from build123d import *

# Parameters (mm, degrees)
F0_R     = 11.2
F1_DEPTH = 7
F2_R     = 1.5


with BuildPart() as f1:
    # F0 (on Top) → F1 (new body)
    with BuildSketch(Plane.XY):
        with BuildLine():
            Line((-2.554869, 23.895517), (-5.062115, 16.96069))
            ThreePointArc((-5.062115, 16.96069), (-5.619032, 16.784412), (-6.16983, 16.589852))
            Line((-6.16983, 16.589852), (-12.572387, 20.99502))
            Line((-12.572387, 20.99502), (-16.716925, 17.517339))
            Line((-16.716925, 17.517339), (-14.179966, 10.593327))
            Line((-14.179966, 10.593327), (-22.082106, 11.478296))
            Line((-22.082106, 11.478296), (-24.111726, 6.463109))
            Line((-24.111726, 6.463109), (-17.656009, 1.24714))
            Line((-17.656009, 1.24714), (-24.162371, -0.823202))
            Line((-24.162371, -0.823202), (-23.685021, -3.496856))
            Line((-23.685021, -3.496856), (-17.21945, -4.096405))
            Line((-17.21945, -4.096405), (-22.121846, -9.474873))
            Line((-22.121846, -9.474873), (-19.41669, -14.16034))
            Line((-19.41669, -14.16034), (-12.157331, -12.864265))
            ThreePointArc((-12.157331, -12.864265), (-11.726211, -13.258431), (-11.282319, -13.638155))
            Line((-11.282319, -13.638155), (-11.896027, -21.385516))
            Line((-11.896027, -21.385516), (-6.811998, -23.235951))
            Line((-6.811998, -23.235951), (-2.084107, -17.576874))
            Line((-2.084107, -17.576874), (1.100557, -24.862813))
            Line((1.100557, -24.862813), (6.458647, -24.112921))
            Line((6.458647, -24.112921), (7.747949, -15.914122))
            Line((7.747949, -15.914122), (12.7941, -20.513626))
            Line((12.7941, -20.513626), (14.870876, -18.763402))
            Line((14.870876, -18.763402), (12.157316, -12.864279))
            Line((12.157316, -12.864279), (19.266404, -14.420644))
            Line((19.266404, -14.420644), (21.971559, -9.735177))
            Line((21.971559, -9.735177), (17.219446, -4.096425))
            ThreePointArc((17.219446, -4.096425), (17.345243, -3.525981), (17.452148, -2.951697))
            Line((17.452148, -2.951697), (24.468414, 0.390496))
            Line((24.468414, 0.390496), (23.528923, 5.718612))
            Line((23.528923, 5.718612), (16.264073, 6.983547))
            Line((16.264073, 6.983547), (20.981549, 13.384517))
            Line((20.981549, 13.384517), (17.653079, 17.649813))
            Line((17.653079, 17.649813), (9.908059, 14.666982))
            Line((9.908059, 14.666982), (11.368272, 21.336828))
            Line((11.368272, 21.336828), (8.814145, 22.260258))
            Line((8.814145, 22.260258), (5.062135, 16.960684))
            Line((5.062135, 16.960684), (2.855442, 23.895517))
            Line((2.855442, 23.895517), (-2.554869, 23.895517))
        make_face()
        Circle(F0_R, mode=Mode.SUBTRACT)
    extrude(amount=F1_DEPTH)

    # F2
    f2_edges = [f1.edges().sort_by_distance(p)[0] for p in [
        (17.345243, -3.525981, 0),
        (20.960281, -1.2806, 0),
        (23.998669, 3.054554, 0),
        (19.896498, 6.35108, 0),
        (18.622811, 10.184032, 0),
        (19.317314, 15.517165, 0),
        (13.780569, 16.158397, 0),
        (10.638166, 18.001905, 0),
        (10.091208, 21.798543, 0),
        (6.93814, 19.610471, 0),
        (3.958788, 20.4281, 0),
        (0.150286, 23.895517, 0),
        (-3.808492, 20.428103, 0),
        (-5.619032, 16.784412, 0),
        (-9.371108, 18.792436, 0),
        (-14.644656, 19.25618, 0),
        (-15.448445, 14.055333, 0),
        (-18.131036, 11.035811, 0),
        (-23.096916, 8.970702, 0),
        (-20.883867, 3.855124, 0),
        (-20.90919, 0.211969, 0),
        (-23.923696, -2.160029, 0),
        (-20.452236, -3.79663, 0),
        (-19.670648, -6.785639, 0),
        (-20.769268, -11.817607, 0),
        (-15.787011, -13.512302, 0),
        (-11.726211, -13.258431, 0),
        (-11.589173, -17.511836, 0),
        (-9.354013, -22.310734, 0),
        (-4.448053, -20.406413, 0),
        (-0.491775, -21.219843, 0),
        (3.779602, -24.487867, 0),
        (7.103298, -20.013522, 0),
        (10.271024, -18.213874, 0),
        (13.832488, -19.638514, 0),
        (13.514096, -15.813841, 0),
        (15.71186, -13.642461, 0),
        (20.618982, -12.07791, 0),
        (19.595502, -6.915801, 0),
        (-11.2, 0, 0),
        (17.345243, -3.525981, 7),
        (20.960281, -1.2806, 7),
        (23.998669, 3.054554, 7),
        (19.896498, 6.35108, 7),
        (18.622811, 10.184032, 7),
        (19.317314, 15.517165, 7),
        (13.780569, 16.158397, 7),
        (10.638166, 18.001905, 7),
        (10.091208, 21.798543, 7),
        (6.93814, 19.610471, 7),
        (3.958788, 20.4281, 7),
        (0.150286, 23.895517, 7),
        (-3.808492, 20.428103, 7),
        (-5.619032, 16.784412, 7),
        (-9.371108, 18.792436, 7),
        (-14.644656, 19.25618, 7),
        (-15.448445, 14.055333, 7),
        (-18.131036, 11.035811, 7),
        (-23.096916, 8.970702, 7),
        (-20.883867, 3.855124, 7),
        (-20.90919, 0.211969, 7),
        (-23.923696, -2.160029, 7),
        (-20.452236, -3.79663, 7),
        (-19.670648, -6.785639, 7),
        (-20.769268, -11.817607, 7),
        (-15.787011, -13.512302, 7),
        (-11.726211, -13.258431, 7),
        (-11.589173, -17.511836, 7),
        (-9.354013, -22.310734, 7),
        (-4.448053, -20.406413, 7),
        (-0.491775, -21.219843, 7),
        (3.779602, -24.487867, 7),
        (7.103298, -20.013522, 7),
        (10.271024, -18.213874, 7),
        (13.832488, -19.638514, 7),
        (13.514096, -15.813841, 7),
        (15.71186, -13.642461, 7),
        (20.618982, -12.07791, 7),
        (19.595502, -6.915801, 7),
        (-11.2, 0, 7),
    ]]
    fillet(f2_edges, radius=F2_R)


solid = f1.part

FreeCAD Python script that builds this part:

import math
import FreeCAD as App
import Part
import Sketcher

V = App.Vector


def edges_at(feature, points):
    """Names of the edges that pass closest to the given points."""
    edges = feature.Shape.Edges
    near = lambda p: min(range(len(edges)), key=lambda i: edges[i].distToShape(Part.Vertex(*p))[0])
    return sorted({f"Edge{near(p) + 1}" for p in points})

doc = App.newDocument("Part")
body = doc.addObject("PartDesign::Body", "Body")

# Sketch on XY plane
sketch1 = body.newObject("Sketcher::SketchObject", "Sketch")
sketch1.AttachmentSupport = (doc.getObject("XY_Plane"), [""])
sketch1.MapMode = "FlatFace"
sketch1.addGeometry([
    Part.LineSegment(V(-2.554869, 23.895517, 0), V(-5.062115, 16.96069, 0)),  # 0
    Part.ArcOfCircle(Part.Circle(V(-0.000061, 0.000211, 0), V(0, 0, 1), 17.699781), math.radians(106.618352), math.radians(110.400416)),  # 1
    Part.LineSegment(V(-6.16983, 16.589852, 0), V(-12.572387, 20.99502, 0)),  # 2
    Part.LineSegment(V(-12.572387, 20.99502, 0), V(-16.716925, 17.517339, 0)),  # 3
    Part.LineSegment(V(-16.716925, 17.517339, 0), V(-14.179966, 10.593327, 0)),  # 4
    Part.LineSegment(V(-14.179966, 10.593327, 0), V(-22.082106, 11.478296, 0)),  # 5
    Part.LineSegment(V(-22.082106, 11.478296, 0), V(-24.111726, 6.463109, 0)),  # 6
    Part.LineSegment(V(-24.111726, 6.463109, 0), V(-17.656009, 1.24714, 0)),  # 7
    Part.LineSegment(V(-17.656009, 1.24714, 0), V(-24.162371, -0.823202, 0)),  # 8
    Part.LineSegment(V(-24.162371, -0.823202, 0), V(-23.685021, -3.496856, 0)),  # 9
    Part.LineSegment(V(-23.685021, -3.496856, 0), V(-17.21945, -4.096405, 0)),  # 10
    Part.LineSegment(V(-17.21945, -4.096405, 0), V(-22.121846, -9.474873, 0)),  # 11
    Part.LineSegment(V(-22.121846, -9.474873, 0), V(-19.41669, -14.16034, 0)),  # 12
    Part.LineSegment(V(-19.41669, -14.16034, 0), V(-12.157331, -12.864265, 0)),  # 13
    Part.ArcOfCircle(Part.Circle(V(-0.000506, -0.000561, 0), V(0, 0, 1), 17.699245), math.radians(-133.381712), math.radians(-129.599536)),  # 14
    Part.LineSegment(V(-11.282319, -13.638155, 0), V(-11.896027, -21.385516, 0)),  # 15
    Part.LineSegment(V(-11.896027, -21.385516, 0), V(-6.811998, -23.235951, 0)),  # 16
    Part.LineSegment(V(-6.811998, -23.235951, 0), V(-2.084107, -17.576874, 0)),  # 17
    Part.LineSegment(V(-2.084107, -17.576874, 0), V(1.100557, -24.862813, 0)),  # 18
    Part.LineSegment(V(1.100557, -24.862813, 0), V(6.458647, -24.112921, 0)),  # 19
    Part.LineSegment(V(6.458647, -24.112921, 0), V(7.747949, -15.914122, 0)),  # 20
    Part.LineSegment(V(7.747949, -15.914122, 0), V(12.7941, -20.513626, 0)),  # 21
    Part.LineSegment(V(12.7941, -20.513626, 0), V(14.870876, -18.763402, 0)),  # 22
    Part.LineSegment(V(14.870876, -18.763402, 0), V(12.157316, -12.864279, 0)),  # 23
    Part.LineSegment(V(12.157316, -12.864279, 0), V(19.266404, -14.420644, 0)),  # 24
    Part.LineSegment(V(19.266404, -14.420644, 0), V(21.971559, -9.735177, 0)),  # 25
    Part.LineSegment(V(21.971559, -9.735177, 0), V(17.219446, -4.096425, 0)),  # 26
    Part.ArcOfCircle(Part.Circle(V(-0.000253, 0.000037, 0), V(0, 0, 1), 17.700255), math.radians(-13.381582), math.radians(-9.599621)),  # 27
    Part.LineSegment(V(17.452148, -2.951697, 0), V(24.468414, 0.390496, 0)),  # 28
    Part.LineSegment(V(24.468414, 0.390496, 0), V(23.528923, 5.718612, 0)),  # 29
    Part.LineSegment(V(23.528923, 5.718612, 0), V(16.264073, 6.983547, 0)),  # 30
    Part.LineSegment(V(16.264073, 6.983547, 0), V(20.981549, 13.384517, 0)),  # 31
    Part.LineSegment(V(20.981549, 13.384517, 0), V(17.653079, 17.649813, 0)),  # 32
    Part.LineSegment(V(17.653079, 17.649813, 0), V(9.908059, 14.666982, 0)),  # 33
    Part.LineSegment(V(9.908059, 14.666982, 0), V(11.368272, 21.336828, 0)),  # 34
    Part.LineSegment(V(11.368272, 21.336828, 0), V(8.814145, 22.260258, 0)),  # 35
    Part.LineSegment(V(8.814145, 22.260258, 0), V(5.062135, 16.960684, 0)),  # 36
    Part.LineSegment(V(5.062135, 16.960684, 0), V(2.855442, 23.895517, 0)),  # 37
    Part.LineSegment(V(2.855442, 23.895517, 0), V(-2.554869, 23.895517, 0)),  # 38
    Part.Circle(V(0, 0, 0), V(0, 0, 1), 11.2),  # 39
], False)
sketch1.addConstraint([
    Sketcher.Constraint("Coincident", 0, 2, 1, 1),
    Sketcher.Constraint("Coincident", 1, 2, 2, 1),
    Sketcher.Constraint("Coincident", 2, 2, 3, 1),
    Sketcher.Constraint("Coincident", 3, 2, 4, 1),
    Sketcher.Constraint("Coincident", 4, 2, 5, 1),
    Sketcher.Constraint("Coincident", 5, 2, 6, 1),
    Sketcher.Constraint("Coincident", 6, 2, 7, 1),
    Sketcher.Constraint("Coincident", 7, 2, 8, 1),
    Sketcher.Constraint("Coincident", 8, 2, 9, 1),
    Sketcher.Constraint("Coincident", 9, 2, 10, 1),
    Sketcher.Constraint("Coincident", 10, 2, 11, 1),
    Sketcher.Constraint("Coincident", 11, 2, 12, 1),
    Sketcher.Constraint("Coincident", 12, 2, 13, 1),
    Sketcher.Constraint("Coincident", 13, 2, 14, 1),
    Sketcher.Constraint("Coincident", 14, 2, 15, 1),
    Sketcher.Constraint("Coincident", 15, 2, 16, 1),
    Sketcher.Constraint("Coincident", 16, 2, 17, 1),
    Sketcher.Constraint("Coincident", 17, 2, 18, 1),
    Sketcher.Constraint("Coincident", 18, 2, 19, 1),
    Sketcher.Constraint("Coincident", 19, 2, 20, 1),
    Sketcher.Constraint("Coincident", 20, 2, 21, 1),
    Sketcher.Constraint("Coincident", 21, 2, 22, 1),
    Sketcher.Constraint("Coincident", 22, 2, 23, 1),
    Sketcher.Constraint("Coincident", 23, 2, 24, 1),
    Sketcher.Constraint("Coincident", 24, 2, 25, 1),
    Sketcher.Constraint("Coincident", 25, 2, 26, 1),
    Sketcher.Constraint("Coincident", 26, 2, 27, 1),
    Sketcher.Constraint("Coincident", 27, 2, 28, 1),
    Sketcher.Constraint("Coincident", 28, 2, 29, 1),
    Sketcher.Constraint("Coincident", 29, 2, 30, 1),
    Sketcher.Constraint("Coincident", 30, 2, 31, 1),
    Sketcher.Constraint("Coincident", 31, 2, 32, 1),
    Sketcher.Constraint("Coincident", 32, 2, 33, 1),
    Sketcher.Constraint("Coincident", 33, 2, 34, 1),
    Sketcher.Constraint("Coincident", 34, 2, 35, 1),
    Sketcher.Constraint("Coincident", 35, 2, 36, 1),
    Sketcher.Constraint("Coincident", 36, 2, 37, 1),
    Sketcher.Constraint("Coincident", 37, 2, 38, 1),
    Sketcher.Constraint("Coincident", 38, 2, 0, 1),
    Sketcher.Constraint("Horizontal", 38),
    Sketcher.Constraint("Coincident", 39, 3, -1, 1),
    Sketcher.Constraint("Diameter", 39, 22.4),
    Sketcher.Constraint("Radius", 1, 17.699781),
    Sketcher.Constraint("Radius", 14, 17.699245),
    Sketcher.Constraint("Radius", 27, 17.700255),
    Sketcher.Constraint("DistanceX", 38, 2, 38, 1, 5.410311),
    Sketcher.Constraint("DistanceY", 8, 2, -1, 1, 0.823202),
    Sketcher.Constraint("DistanceX", -1, 1, 21, 2, 12.7941),
    Sketcher.Constraint("DistanceY", 22, 2, -1, 1, 18.763402),
    Sketcher.Constraint("DistanceY", 14, 3, 27, 3, 0.000598),
    Sketcher.Constraint("DistanceX", 6, 2, 3, 2, 7.394801),
    Sketcher.Constraint("DistanceY", 7, 2, 3, 2, 16.270199),
    Sketcher.Constraint("DistanceY", 14, 3, 7, 2, 1.247701),
    Sketcher.Constraint("DistanceY", 14, 2, 9, 2, 10.141299),
    Sketcher.Constraint("DistanceY", 19, 2, 20, 2, 8.198799),
    Sketcher.Constraint("DistanceY", 23, 2, 25, 2, 3.129102),
    Sketcher.Constraint("DistanceX", 27, 2, 31, 2, 3.529401),
    Sketcher.Constraint("DistanceY", 29, 2, 32, 2, 11.931201),
    Sketcher.Constraint("DistanceX", 34, 2, 30, 2, 4.895801),
    Sketcher.Constraint("DistanceY", 33, 2, 36, 2, 2.293702),
    Sketcher.Constraint("Distance", 0, 7.374151),
    Sketcher.Constraint("Distance", 2, 7.771631),
    Sketcher.Constraint("Distance", 3, 5.410311),
    Sketcher.Constraint("Distance", 4, 7.374151),
    Sketcher.Constraint("Distance", 5, 7.95154),
    Sketcher.Constraint("Distance", 6, 5.41031),
    Sketcher.Constraint("Distance", 10, 6.493309),
    Sketcher.Constraint("Distance", 11, 7.277459),
    Sketcher.Constraint("Distance", 12, 5.410311),
    Sketcher.Constraint("Distance", 13, 7.374151),
    Sketcher.Constraint("Distance", 15, 7.77163),
    Sketcher.Constraint("Distance", 16, 5.410311),
    Sketcher.Constraint("Distance", 17, 7.374151),
    Sketcher.Constraint("Distance", 18, 7.95154),
    Sketcher.Constraint("Distance", 19, 5.410311),
    Sketcher.Constraint("Distance", 22, 2.715931),
    Sketcher.Constraint("Distance", 23, 6.493309),
    Sketcher.Constraint("Distance", 24, 7.277459),
    Sketcher.Constraint("Distance", 25, 5.410311),
    Sketcher.Constraint("Distance", 26, 7.374151),
    Sketcher.Constraint("Distance", 28, 7.771631),
    Sketcher.Constraint("Distance", 29, 5.410311),
    Sketcher.Constraint("Distance", 30, 7.374151),
    Sketcher.Constraint("Distance", 31, 7.951541),
    Sketcher.Constraint("Distance", 32, 5.410311),
    Sketcher.Constraint("Distance", 36, 6.493309),
    Sketcher.Constraint("Distance", 37, 7.277459),
    Sketcher.Constraint("DistanceY", -1, 1, 1, 3, 0.000211),
    Sketcher.Constraint("DistanceY", 14, 3, -1, 1, 0.000561),
    Sketcher.Constraint("DistanceY", -1, 1, 0, 2, 16.96069),
    Sketcher.Constraint("DistanceX", 1, 2, -1, 1, 6.16983),
    Sketcher.Constraint("DistanceY", -1, 1, 1, 2, 16.589852),
    Sketcher.Constraint("DistanceY", -1, 1, 2, 2, 20.99502),
    Sketcher.Constraint("DistanceY", -1, 1, 6, 2, 6.463109),
    Sketcher.Constraint("DistanceX", 7, 2, -1, 1, 17.656009),
    Sketcher.Constraint("DistanceX", 8, 2, -1, 1, 24.162371),
    Sketcher.Constraint("DistanceX", 9, 2, -1, 1, 23.685021),
    Sketcher.Constraint("DistanceX", 10, 2, -1, 1, 17.21945),
    Sketcher.Constraint("DistanceX", 12, 2, -1, 1, 19.41669),
    Sketcher.Constraint("DistanceY", 12, 2, -1, 1, 14.16034),
    Sketcher.Constraint("DistanceX", 13, 2, -1, 1, 12.157331),
    Sketcher.Constraint("DistanceX", 14, 2, -1, 1, 11.282319),
    Sketcher.Constraint("DistanceY", 16, 2, -1, 1, 23.235951),
    Sketcher.Constraint("DistanceY", 19, 2, -1, 1, 24.112921),
    Sketcher.Constraint("DistanceX", -1, 1, 20, 2, 7.747949),
    Sketcher.Constraint("DistanceY", 23, 2, -1, 1, 12.864279),
    Sketcher.Constraint("DistanceX", -1, 1, 25, 2, 21.971559),
    Sketcher.Constraint("DistanceX", -1, 1, 27, 2, 17.452148),
    Sketcher.Constraint("DistanceX", -1, 1, 32, 2, 17.653079),
    Sketcher.Constraint("DistanceX", -1, 1, 33, 2, 9.908059),
    Sketcher.Constraint("DistanceX", -1, 1, 34, 2, 11.368272),
    Sketcher.Constraint("DistanceY", -1, 1, 34, 2, 21.336828),
    Sketcher.Constraint("DistanceY", -1, 1, 35, 2, 22.260258),
    Sketcher.Constraint("DistanceX", -1, 1, 37, 2, 2.855442),
    Sketcher.Constraint("DistanceX", 3, 2, 4, 2, 2.536959),
    Sketcher.Constraint("DistanceX", 15, 2, 14, 2, 0.613708),
    Sketcher.Constraint("DistanceX", 16, 2, 17, 2, 4.727891),
    Sketcher.Constraint("DistanceY", 18, 2, 17, 2, 7.285939),
    Sketcher.Constraint("DistanceY", 21, 2, 17, 2, 2.936752),
    Sketcher.Constraint("DistanceX", 23, 2, 26, 2, 5.06213),
    Sketcher.Constraint("DistanceY", 26, 2, 28, 2, 4.486921),
    Sketcher.Constraint("DistanceY", 33, 2, 32, 2, 2.982831),
])
pad1 = body.newObject("PartDesign::Pad", "Pad")
pad1.Profile = sketch1
pad1.Length = 7
doc.recompute()

fillet = body.newObject("PartDesign::Fillet", "Fillet")
fillet.Base = (pad1, edges_at(pad1, [
    (17.345, -3.526, 0),
    (20.96, -1.281, 0),
    (23.999, 3.055, 0),
    (19.896, 6.351, 0),
    (18.623, 10.184, 0),
    (19.317, 15.517, 0),
    (13.781, 16.158, 0),
    (10.638, 18.002, 0),
    (10.091, 21.799, 0),
    (6.938, 19.61, 0),
    (3.959, 20.428, 0),
    (0.15, 23.896, 0),
    (-3.808, 20.428, 0),
    (-5.619, 16.784, 0),
    (-9.371, 18.792, 0),
    (-14.645, 19.256, 0),
    (-15.448, 14.055, 0),
    (-18.131, 11.036, 0),
    (-23.097, 8.971, 0),
    (-20.884, 3.855, 0),
    (-20.909, 0.212, 0),
    (-23.924, -2.16, 0),
    (-20.452, -3.797, 0),
    (-19.671, -6.786, 0),
    (-20.769, -11.818, 0),
    (-15.787, -13.512, 0),
    (-11.726, -13.258, 0),
    (-11.589, -17.512, 0),
    (-9.354, -22.311, 0),
    (-4.448, -20.406, 0),
    (-0.492, -21.22, 0),
    (3.78, -24.488, 0),
    (7.103, -20.014, 0),
    (10.271, -18.214, 0),
    (13.832, -19.639, 0),
    (13.514, -15.814, 0),
    (15.712, -13.642, 0),
    (20.619, -12.078, 0),
    (19.596, -6.916, 0),
    (-11.2, 0, 0),
    (17.345, -3.526, 7),
    (20.96, -1.281, 7),
    (23.999, 3.055, 7),
    (19.896, 6.351, 7),
    (18.623, 10.184, 7),
    (19.317, 15.517, 7),
    (13.781, 16.158, 7),
    (10.638, 18.002, 7),
    (10.091, 21.799, 7),
    (6.938, 19.61, 7),
    (3.959, 20.428, 7),
    (0.15, 23.896, 7),
    (-3.808, 20.428, 7),
    (-5.619, 16.784, 7),
    (-9.371, 18.792, 7),
    (-14.645, 19.256, 7),
    (-15.448, 14.055, 7),
    (-18.131, 11.036, 7),
    (-23.097, 8.971, 7),
    (-20.884, 3.855, 7),
    (-20.909, 0.212, 7),
    (-23.924, -2.16, 7),
    (-20.452, -3.797, 7),
    (-19.671, -6.786, 7),
    (-20.769, -11.818, 7),
    (-15.787, -13.512, 7),
    (-11.726, -13.258, 7),
    (-11.589, -17.512, 7),
    (-9.354, -22.311, 7),
    (-4.448, -20.406, 7),
    (-0.492, -21.22, 7),
    (3.78, -24.488, 7),
    (7.103, -20.014, 7),
    (10.271, -18.214, 7),
    (13.832, -19.639, 7),
    (13.514, -15.814, 7),
    (15.712, -13.642, 7),
    (20.619, -12.078, 7),
    (19.596, -6.916, 7),
    (-11.2, 0, 7),
]))
fillet.Radius = 1.5

doc.recompute()
